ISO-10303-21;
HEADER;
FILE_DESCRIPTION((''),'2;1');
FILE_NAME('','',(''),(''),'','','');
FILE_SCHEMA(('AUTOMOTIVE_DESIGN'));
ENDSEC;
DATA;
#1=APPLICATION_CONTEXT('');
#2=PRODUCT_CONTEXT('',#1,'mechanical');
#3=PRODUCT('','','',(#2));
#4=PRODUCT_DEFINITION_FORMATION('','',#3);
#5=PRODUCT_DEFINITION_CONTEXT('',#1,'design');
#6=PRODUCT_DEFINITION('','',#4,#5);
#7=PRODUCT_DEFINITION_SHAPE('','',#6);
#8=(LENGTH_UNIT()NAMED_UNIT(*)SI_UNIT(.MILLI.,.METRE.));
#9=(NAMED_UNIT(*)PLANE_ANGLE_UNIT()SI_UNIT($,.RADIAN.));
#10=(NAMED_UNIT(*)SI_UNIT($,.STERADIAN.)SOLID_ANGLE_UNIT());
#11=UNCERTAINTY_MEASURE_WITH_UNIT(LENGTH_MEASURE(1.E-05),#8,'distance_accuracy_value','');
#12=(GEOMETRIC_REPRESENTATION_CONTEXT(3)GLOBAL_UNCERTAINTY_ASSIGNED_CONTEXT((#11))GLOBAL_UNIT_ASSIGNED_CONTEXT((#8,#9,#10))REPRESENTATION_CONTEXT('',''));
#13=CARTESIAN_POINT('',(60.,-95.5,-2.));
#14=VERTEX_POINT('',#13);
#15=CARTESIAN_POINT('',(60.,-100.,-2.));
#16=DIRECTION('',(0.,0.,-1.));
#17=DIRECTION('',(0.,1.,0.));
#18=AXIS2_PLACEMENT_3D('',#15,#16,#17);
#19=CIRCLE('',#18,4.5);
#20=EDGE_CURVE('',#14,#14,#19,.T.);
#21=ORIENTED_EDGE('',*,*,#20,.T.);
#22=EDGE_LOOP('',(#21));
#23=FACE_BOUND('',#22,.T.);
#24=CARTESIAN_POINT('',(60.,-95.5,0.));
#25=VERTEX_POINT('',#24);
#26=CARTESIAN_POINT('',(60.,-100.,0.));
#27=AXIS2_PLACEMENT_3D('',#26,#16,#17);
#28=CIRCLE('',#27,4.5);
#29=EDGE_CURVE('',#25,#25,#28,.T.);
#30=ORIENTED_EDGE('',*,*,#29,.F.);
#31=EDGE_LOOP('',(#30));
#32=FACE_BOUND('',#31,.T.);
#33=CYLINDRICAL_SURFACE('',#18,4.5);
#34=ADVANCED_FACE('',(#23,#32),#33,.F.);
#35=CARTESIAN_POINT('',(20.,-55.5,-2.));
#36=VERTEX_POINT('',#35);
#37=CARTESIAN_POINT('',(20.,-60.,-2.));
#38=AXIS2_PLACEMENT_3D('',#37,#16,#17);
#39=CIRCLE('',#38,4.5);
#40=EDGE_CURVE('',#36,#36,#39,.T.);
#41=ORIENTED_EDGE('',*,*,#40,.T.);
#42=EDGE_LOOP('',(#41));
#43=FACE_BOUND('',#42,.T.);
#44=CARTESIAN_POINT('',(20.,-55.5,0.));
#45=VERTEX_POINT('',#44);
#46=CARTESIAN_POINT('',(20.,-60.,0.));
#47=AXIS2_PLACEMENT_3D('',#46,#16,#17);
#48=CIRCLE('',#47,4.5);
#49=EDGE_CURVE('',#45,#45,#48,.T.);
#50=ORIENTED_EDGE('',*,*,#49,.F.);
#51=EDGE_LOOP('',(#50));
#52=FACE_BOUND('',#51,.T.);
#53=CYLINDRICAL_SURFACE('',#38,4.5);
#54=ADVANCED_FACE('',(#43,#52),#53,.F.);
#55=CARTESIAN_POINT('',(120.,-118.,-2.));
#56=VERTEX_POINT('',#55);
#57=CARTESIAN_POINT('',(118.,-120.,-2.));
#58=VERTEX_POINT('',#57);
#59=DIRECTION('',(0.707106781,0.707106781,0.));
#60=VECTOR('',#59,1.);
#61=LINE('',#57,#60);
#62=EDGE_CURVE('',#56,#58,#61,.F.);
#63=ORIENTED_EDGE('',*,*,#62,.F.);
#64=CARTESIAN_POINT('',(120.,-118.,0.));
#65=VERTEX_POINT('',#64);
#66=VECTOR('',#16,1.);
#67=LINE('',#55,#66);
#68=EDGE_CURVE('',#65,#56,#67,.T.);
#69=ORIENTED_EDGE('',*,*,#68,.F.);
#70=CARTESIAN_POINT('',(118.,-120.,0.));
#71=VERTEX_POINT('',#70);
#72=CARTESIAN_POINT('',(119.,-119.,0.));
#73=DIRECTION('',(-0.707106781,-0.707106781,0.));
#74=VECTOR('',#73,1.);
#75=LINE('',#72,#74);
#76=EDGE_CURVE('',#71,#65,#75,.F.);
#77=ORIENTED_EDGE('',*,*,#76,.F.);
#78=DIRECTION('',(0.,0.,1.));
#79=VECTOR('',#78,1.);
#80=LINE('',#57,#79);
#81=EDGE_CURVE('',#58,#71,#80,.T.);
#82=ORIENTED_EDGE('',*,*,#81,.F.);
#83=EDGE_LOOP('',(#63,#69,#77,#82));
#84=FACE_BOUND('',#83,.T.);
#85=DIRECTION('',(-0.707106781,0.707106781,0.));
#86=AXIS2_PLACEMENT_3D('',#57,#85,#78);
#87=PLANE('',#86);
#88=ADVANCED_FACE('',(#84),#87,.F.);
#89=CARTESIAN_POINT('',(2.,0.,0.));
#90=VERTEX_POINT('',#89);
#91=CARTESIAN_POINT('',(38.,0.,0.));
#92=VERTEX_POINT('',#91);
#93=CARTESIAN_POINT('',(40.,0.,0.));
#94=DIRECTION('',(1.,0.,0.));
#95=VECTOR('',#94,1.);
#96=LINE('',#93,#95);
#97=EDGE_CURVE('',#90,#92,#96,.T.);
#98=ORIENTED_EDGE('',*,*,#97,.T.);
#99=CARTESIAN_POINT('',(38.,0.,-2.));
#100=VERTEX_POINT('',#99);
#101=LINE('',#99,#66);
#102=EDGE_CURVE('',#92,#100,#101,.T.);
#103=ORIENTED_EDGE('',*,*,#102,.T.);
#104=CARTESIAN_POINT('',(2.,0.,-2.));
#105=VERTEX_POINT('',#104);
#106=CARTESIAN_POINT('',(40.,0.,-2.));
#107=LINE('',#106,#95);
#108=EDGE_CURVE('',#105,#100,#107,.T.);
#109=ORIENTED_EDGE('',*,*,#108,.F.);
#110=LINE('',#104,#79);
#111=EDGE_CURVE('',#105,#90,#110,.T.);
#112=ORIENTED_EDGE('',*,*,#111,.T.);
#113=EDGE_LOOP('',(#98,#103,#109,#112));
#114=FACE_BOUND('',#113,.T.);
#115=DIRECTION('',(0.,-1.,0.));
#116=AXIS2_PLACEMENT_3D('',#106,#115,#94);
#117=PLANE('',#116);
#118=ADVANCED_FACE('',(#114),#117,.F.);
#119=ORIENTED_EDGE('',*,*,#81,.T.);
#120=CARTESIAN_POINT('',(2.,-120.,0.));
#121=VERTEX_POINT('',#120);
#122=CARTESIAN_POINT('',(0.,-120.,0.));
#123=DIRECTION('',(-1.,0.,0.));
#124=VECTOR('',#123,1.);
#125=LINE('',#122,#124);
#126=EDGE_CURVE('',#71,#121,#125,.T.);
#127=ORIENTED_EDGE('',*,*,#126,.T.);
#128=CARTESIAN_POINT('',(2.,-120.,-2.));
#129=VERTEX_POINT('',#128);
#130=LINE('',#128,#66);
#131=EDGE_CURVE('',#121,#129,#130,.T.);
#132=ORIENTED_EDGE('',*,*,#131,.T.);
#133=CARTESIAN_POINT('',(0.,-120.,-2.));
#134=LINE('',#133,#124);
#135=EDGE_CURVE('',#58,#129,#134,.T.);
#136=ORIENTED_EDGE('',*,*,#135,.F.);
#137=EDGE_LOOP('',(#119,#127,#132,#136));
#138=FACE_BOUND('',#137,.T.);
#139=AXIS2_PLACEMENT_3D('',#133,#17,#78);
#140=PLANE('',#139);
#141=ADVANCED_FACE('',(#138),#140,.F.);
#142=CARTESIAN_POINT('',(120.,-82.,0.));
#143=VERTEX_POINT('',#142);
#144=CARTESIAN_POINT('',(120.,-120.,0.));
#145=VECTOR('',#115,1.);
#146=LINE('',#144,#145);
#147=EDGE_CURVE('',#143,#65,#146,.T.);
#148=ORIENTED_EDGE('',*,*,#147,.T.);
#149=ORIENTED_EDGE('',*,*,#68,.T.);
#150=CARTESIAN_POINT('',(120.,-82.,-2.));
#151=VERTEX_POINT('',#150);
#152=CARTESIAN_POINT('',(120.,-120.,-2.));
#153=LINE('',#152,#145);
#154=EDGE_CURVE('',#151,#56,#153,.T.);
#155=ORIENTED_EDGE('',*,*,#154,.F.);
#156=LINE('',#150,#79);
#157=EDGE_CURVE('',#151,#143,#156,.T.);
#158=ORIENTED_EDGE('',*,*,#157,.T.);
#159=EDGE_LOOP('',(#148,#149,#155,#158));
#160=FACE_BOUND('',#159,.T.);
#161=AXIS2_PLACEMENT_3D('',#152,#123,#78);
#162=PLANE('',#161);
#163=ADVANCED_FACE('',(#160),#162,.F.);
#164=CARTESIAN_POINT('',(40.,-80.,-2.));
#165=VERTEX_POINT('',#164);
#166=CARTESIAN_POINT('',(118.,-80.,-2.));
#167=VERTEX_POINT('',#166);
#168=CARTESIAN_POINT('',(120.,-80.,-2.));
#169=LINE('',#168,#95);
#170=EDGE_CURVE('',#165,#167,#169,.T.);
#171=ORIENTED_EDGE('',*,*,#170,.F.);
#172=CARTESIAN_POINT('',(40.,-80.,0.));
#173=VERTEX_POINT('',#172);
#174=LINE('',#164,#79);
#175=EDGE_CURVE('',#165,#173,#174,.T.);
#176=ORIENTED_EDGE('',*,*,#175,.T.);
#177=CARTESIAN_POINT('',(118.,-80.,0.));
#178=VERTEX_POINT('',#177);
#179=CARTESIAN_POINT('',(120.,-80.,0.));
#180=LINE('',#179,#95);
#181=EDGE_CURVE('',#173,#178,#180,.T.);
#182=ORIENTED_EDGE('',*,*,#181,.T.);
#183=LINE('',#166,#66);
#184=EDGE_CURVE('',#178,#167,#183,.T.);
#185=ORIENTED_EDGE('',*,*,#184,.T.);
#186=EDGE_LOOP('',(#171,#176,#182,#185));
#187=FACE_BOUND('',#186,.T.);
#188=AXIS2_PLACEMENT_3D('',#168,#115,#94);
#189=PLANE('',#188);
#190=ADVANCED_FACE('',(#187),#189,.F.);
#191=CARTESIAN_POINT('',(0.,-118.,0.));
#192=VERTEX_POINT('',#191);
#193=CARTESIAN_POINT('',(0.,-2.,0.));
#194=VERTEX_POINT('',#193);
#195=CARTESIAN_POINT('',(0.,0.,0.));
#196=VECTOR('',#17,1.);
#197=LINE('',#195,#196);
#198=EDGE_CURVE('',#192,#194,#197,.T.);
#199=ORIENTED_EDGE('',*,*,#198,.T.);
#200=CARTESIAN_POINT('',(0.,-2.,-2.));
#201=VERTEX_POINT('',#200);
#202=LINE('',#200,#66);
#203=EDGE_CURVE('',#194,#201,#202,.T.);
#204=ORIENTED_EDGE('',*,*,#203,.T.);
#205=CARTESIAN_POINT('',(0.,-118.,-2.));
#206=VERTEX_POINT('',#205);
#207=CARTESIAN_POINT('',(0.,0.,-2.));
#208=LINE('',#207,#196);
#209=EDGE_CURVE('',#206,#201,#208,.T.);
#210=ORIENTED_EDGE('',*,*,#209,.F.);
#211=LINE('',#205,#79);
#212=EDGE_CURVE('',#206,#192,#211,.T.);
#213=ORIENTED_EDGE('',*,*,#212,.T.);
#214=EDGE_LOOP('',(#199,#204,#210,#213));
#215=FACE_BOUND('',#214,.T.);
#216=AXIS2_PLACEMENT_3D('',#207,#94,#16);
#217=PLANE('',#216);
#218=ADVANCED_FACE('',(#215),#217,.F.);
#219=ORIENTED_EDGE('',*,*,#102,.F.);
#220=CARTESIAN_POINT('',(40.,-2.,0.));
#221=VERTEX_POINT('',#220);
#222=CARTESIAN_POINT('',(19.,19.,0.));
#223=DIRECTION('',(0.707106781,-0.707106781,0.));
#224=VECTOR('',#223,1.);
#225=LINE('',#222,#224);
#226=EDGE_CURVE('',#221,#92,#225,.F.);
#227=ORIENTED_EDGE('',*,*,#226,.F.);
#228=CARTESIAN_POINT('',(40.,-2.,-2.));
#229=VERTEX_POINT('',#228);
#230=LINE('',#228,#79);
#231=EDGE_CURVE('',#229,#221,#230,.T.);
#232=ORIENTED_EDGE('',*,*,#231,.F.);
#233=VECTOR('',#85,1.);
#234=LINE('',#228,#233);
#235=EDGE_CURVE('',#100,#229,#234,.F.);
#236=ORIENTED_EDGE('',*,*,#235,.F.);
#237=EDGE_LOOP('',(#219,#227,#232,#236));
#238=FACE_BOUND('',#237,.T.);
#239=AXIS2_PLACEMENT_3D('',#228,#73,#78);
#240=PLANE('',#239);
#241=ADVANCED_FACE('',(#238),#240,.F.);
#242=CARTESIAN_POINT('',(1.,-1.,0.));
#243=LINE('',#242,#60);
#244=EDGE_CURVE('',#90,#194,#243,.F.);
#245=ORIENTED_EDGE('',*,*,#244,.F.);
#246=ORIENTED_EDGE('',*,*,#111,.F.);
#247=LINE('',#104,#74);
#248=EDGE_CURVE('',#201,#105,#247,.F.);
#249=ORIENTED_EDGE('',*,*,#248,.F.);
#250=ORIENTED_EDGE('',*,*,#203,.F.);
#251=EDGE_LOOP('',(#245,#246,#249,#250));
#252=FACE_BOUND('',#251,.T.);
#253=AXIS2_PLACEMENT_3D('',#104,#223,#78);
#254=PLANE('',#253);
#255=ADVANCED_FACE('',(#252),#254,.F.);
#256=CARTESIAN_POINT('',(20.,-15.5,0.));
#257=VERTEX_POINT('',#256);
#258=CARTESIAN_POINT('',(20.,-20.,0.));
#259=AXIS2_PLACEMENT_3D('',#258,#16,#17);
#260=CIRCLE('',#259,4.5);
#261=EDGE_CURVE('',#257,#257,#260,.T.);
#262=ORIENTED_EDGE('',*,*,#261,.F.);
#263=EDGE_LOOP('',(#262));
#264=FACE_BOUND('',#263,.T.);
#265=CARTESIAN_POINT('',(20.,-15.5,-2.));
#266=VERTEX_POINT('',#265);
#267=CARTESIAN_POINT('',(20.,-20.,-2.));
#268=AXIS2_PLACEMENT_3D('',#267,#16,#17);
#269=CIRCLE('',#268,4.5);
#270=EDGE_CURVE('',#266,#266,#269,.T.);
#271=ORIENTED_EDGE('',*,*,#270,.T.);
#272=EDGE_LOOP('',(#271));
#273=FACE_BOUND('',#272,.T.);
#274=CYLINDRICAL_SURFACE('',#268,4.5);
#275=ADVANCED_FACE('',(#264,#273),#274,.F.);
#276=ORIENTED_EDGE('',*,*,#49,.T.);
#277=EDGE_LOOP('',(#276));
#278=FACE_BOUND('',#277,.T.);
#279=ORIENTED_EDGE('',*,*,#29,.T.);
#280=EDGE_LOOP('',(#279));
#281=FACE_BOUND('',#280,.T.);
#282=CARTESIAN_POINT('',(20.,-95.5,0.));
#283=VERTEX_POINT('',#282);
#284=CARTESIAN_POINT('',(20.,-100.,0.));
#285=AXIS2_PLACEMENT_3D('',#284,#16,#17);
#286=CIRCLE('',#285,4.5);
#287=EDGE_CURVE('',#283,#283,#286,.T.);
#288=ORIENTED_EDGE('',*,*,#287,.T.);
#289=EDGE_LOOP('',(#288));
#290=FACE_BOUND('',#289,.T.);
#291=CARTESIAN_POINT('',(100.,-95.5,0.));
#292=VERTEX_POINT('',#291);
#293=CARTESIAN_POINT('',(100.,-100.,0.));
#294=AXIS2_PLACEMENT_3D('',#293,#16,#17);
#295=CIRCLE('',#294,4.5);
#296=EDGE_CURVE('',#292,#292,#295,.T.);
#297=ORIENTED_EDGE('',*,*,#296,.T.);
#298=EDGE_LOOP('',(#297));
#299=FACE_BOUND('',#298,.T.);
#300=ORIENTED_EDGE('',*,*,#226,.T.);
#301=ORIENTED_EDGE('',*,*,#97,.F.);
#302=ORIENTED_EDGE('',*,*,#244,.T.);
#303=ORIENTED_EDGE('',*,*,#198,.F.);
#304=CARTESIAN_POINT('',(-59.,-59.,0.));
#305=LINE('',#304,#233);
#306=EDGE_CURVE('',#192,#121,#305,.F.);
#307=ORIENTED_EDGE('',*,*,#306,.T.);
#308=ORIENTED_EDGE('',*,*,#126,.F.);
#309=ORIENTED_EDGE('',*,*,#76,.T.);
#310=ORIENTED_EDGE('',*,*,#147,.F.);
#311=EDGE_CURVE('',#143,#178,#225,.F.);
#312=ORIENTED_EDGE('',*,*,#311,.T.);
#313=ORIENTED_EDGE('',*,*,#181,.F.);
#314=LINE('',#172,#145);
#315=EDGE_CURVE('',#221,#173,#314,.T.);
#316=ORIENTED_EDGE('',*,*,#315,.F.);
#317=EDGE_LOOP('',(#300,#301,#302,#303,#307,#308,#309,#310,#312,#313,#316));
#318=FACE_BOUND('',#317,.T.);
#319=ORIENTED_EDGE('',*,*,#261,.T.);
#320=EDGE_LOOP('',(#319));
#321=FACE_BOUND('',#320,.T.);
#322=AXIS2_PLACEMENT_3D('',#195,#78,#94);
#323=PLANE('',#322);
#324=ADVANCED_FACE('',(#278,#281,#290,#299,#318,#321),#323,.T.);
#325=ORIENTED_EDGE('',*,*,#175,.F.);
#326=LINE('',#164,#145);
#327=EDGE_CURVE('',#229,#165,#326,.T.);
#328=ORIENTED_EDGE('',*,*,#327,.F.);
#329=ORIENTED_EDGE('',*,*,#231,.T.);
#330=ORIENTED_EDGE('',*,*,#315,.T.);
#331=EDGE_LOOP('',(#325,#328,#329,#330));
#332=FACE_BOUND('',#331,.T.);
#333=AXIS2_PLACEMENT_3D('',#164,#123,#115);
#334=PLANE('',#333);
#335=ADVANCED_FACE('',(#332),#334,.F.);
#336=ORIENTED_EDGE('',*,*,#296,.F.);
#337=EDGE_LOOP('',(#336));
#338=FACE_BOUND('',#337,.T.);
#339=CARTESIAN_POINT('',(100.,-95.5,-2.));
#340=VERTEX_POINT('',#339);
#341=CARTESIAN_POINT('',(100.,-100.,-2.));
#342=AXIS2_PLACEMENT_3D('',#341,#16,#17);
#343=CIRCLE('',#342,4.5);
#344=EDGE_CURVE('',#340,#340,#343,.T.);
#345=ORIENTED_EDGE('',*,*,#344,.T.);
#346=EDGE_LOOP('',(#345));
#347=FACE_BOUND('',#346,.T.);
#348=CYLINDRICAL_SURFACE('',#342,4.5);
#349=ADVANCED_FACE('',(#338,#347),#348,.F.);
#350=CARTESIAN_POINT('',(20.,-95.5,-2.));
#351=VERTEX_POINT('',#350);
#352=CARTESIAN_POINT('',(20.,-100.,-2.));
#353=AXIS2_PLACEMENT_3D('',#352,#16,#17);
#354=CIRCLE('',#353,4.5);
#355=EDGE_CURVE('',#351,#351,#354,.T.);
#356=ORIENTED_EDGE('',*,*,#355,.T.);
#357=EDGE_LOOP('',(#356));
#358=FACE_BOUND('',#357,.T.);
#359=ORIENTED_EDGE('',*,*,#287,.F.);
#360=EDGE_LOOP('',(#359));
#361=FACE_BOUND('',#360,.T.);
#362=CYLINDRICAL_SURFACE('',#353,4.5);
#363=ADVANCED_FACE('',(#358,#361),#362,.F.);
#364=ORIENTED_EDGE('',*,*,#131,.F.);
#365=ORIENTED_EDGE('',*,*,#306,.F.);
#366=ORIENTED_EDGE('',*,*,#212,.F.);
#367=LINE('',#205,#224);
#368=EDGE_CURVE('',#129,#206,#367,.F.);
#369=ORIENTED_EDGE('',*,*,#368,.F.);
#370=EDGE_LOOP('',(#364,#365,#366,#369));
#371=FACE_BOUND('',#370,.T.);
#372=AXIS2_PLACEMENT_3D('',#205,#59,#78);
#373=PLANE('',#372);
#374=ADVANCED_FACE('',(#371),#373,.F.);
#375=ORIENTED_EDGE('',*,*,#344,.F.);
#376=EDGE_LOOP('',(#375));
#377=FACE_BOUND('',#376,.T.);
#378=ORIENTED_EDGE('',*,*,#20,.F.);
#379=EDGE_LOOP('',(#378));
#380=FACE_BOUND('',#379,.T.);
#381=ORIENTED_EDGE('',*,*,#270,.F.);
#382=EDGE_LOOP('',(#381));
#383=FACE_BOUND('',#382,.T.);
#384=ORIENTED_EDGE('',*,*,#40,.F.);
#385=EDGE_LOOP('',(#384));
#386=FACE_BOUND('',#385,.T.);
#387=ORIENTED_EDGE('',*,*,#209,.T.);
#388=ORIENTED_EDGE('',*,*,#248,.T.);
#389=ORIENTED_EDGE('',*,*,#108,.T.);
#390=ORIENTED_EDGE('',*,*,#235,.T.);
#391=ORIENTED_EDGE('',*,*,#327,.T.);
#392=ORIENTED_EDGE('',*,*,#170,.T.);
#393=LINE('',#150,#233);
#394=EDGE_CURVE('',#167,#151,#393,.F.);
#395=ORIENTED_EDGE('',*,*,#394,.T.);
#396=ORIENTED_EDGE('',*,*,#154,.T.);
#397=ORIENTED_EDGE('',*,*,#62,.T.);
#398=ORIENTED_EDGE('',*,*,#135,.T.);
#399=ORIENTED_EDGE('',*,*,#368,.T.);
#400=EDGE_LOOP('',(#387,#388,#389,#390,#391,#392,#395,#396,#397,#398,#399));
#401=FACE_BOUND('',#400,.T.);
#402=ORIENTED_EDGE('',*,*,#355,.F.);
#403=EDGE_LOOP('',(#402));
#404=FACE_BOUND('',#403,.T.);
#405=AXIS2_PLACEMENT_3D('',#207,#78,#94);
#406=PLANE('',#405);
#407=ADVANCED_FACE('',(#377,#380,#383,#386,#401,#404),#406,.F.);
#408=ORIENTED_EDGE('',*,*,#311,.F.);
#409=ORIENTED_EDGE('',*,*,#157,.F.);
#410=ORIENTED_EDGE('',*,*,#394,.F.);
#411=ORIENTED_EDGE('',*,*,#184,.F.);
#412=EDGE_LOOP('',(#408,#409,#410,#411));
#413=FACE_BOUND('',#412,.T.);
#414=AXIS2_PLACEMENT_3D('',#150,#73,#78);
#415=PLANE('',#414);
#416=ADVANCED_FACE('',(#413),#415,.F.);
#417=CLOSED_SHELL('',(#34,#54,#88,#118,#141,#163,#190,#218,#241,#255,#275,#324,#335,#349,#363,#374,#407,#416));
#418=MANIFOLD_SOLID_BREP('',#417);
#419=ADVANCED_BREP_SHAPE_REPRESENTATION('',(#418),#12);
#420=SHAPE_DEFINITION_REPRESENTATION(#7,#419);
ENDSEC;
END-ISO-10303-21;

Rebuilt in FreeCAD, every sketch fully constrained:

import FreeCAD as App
import Part
import Sketcher


def edges_at(feature, points):
    """Names of the edges that pass closest to the given points."""
    edges = feature.Shape.Edges
    near = lambda p: min(range(len(edges)), key=lambda i: edges[i].distToShape(Part.Vertex(*p))[0])
    return sorted({f"Edge{near(p) + 1}" for p in points})

doc = App.newDocument("Part")
body = doc.addObject("PartDesign::Body", "Body")

sketch1 = body.newObject("Sketcher::SketchObject", "Sketch")
sketch1.AttachmentSupport = (doc.getObject("XY_Plane"), [""])
sketch1.MapMode = "FlatFace"
sketch1.addGeometry(Part.LineSegment(App.Vector(0, -120, 0), App.Vector(0, 0, 0)), False)
sketch1.addGeometry(Part.LineSegment(App.Vector(0, 0, 0), App.Vector(40, 0, 0)), False)
sketch1.addGeometry(Part.LineSegment(App.Vector(40, 0, 0), App.Vector(40, -80, 0)), False)
sketch1.addGeometry(Part.LineSegment(App.Vector(40, -80, 0), App.Vector(120, -80, 0)), False)
sketch1.addGeometry(Part.LineSegment(App.Vector(120, -80, 0), App.Vector(120, -120, 0)), False)
sketch1.addGeometry(Part.LineSegment(App.Vector(120, -120, 0), App.Vector(0, -120, 0)), False)
sketch1.addConstraint(Sketcher.Constraint("Coincident", 0, 2, 1, 1))
sketch1.addConstraint(Sketcher.Constraint("Coincident", 1, 2, 2, 1))
sketch1.addConstraint(Sketcher.Constraint("Coincident", 2, 2, 3, 1))
sketch1.addConstraint(Sketcher.Constraint("Coincident", 3, 2, 4, 1))
sketch1.addConstraint(Sketcher.Constraint("Coincident", 4, 2, 5, 1))
sketch1.addConstraint(Sketcher.Constraint("Coincident", 5, 2, 0, 1))
sketch1.addConstraint(Sketcher.Constraint("Vertical", 0))
sketch1.addConstraint(Sketcher.Constraint("Horizontal", 1))
sketch1.addConstraint(Sketcher.Constraint("Vertical", 2))
sketch1.addConstraint(Sketcher.Constraint("Horizontal", 3))
sketch1.addConstraint(Sketcher.Constraint("Vertical", 4))
sketch1.addConstraint(Sketcher.Constraint("Horizontal", 5))
sketch1.addConstraint(Sketcher.Constraint("Coincident", 0, 2, -1, 1))
sketch1.addConstraint(Sketcher.Constraint("Equal", 5, 0))
sketch1.addConstraint(Sketcher.Constraint("Equal", 3, 2))
sketch1.addConstraint(Sketcher.Constraint("DistanceX", 1, 1, 1, 2, 40.0))
sketch1.addConstraint(Sketcher.Constraint("DistanceX", 3, 1, 3, 2, 80.0))
pad1 = body.newObject("PartDesign::Pad", "Pad")
pad1.Profile = sketch1
pad1.Length = 2
pad1.Reversed = True

sketch2 = body.newObject("Sketcher::SketchObject", "Sketch001")
sketch2.AttachmentSupport = (doc.getObject("XY_Plane"), [""])
sketch2.MapMode = "FlatFace"
sketch2.AttachmentOffset = App.Placement(App.Vector(0, 0, -2), App.Rotation())
sketch2.addGeometry(Part.Circle(App.Vector(60, -100, 0), App.Vector(0, 0, 1), 4.5), False)
sketch2.addGeometry(Part.Circle(App.Vector(20, -100, 0), App.Vector(0, 0, 1), 4.5), False)
sketch2.addGeometry(Part.Circle(App.Vector(20, -60, 0), App.Vector(0, 0, 1), 4.5), False)
sketch2.addGeometry(Part.Circle(App.Vector(20, -20, 0), App.Vector(0, 0, 1), 4.5), False)
sketch2.addGeometry(Part.Circle(App.Vector(100, -100, 0), App.Vector(0, 0, 1), 4.5), False)
sketch2.addConstraint(Sketcher.Constraint("Equal", 0, 1))
sketch2.addConstraint(Sketcher.Constraint("Equal", 1, 2))
sketch2.addConstraint(Sketcher.Constraint("Equal", 2, 3))
sketch2.addConstraint(Sketcher.Constraint("Equal", 3, 4))
sketch2.addConstraint(Sketcher.Constraint("Horizontal", 0, 3, 1, 3))
sketch2.addConstraint(Sketcher.Constraint("Horizontal", 1, 3, 4, 3))
sketch2.addConstraint(Sketcher.Constraint("Vertical", 1, 3, 2, 3))
sketch2.addConstraint(Sketcher.Constraint("Vertical", 2, 3, 3, 3))
sketch2.addConstraint(Sketcher.Constraint("Diameter", 0, 9.0))
sketch2.addConstraint(Sketcher.Constraint("DistanceX", -1, 1, 0, 3, 60.0))
sketch2.addConstraint(Sketcher.Constraint("DistanceY", 0, 3, -1, 1, 100.0))
sketch2.addConstraint(Sketcher.Constraint("DistanceX", -1, 1, 1, 3, 20.0))
sketch2.addConstraint(Sketcher.Constraint("DistanceY", 2, 3, -1, 1, 60.0))
sketch2.addConstraint(Sketcher.Constraint("DistanceY", 3, 3, -1, 1, 20.0))
sketch2.addConstraint(Sketcher.Constraint("DistanceX", -1, 1, 4, 3, 100.0))
doc.recompute()
hole = body.newObject("PartDesign::Hole", "Hole")
hole.Profile = sketch2
hole.ThreadType = "None"
hole.Diameter = 9
hole.DepthType = "ThroughAll"
hole.Reversed = True
doc.recompute()

chamfer = body.newObject("PartDesign::Chamfer", "Chamfer")
chamfer.Base = (hole, edges_at(hole, [
    (0, 0, -1),
    (0, -120, -1),
    (120, -120, -1),
    (120, -80, -1),
    (40, 0, -1),
]))
chamfer.Size = 2

doc.recompute()
